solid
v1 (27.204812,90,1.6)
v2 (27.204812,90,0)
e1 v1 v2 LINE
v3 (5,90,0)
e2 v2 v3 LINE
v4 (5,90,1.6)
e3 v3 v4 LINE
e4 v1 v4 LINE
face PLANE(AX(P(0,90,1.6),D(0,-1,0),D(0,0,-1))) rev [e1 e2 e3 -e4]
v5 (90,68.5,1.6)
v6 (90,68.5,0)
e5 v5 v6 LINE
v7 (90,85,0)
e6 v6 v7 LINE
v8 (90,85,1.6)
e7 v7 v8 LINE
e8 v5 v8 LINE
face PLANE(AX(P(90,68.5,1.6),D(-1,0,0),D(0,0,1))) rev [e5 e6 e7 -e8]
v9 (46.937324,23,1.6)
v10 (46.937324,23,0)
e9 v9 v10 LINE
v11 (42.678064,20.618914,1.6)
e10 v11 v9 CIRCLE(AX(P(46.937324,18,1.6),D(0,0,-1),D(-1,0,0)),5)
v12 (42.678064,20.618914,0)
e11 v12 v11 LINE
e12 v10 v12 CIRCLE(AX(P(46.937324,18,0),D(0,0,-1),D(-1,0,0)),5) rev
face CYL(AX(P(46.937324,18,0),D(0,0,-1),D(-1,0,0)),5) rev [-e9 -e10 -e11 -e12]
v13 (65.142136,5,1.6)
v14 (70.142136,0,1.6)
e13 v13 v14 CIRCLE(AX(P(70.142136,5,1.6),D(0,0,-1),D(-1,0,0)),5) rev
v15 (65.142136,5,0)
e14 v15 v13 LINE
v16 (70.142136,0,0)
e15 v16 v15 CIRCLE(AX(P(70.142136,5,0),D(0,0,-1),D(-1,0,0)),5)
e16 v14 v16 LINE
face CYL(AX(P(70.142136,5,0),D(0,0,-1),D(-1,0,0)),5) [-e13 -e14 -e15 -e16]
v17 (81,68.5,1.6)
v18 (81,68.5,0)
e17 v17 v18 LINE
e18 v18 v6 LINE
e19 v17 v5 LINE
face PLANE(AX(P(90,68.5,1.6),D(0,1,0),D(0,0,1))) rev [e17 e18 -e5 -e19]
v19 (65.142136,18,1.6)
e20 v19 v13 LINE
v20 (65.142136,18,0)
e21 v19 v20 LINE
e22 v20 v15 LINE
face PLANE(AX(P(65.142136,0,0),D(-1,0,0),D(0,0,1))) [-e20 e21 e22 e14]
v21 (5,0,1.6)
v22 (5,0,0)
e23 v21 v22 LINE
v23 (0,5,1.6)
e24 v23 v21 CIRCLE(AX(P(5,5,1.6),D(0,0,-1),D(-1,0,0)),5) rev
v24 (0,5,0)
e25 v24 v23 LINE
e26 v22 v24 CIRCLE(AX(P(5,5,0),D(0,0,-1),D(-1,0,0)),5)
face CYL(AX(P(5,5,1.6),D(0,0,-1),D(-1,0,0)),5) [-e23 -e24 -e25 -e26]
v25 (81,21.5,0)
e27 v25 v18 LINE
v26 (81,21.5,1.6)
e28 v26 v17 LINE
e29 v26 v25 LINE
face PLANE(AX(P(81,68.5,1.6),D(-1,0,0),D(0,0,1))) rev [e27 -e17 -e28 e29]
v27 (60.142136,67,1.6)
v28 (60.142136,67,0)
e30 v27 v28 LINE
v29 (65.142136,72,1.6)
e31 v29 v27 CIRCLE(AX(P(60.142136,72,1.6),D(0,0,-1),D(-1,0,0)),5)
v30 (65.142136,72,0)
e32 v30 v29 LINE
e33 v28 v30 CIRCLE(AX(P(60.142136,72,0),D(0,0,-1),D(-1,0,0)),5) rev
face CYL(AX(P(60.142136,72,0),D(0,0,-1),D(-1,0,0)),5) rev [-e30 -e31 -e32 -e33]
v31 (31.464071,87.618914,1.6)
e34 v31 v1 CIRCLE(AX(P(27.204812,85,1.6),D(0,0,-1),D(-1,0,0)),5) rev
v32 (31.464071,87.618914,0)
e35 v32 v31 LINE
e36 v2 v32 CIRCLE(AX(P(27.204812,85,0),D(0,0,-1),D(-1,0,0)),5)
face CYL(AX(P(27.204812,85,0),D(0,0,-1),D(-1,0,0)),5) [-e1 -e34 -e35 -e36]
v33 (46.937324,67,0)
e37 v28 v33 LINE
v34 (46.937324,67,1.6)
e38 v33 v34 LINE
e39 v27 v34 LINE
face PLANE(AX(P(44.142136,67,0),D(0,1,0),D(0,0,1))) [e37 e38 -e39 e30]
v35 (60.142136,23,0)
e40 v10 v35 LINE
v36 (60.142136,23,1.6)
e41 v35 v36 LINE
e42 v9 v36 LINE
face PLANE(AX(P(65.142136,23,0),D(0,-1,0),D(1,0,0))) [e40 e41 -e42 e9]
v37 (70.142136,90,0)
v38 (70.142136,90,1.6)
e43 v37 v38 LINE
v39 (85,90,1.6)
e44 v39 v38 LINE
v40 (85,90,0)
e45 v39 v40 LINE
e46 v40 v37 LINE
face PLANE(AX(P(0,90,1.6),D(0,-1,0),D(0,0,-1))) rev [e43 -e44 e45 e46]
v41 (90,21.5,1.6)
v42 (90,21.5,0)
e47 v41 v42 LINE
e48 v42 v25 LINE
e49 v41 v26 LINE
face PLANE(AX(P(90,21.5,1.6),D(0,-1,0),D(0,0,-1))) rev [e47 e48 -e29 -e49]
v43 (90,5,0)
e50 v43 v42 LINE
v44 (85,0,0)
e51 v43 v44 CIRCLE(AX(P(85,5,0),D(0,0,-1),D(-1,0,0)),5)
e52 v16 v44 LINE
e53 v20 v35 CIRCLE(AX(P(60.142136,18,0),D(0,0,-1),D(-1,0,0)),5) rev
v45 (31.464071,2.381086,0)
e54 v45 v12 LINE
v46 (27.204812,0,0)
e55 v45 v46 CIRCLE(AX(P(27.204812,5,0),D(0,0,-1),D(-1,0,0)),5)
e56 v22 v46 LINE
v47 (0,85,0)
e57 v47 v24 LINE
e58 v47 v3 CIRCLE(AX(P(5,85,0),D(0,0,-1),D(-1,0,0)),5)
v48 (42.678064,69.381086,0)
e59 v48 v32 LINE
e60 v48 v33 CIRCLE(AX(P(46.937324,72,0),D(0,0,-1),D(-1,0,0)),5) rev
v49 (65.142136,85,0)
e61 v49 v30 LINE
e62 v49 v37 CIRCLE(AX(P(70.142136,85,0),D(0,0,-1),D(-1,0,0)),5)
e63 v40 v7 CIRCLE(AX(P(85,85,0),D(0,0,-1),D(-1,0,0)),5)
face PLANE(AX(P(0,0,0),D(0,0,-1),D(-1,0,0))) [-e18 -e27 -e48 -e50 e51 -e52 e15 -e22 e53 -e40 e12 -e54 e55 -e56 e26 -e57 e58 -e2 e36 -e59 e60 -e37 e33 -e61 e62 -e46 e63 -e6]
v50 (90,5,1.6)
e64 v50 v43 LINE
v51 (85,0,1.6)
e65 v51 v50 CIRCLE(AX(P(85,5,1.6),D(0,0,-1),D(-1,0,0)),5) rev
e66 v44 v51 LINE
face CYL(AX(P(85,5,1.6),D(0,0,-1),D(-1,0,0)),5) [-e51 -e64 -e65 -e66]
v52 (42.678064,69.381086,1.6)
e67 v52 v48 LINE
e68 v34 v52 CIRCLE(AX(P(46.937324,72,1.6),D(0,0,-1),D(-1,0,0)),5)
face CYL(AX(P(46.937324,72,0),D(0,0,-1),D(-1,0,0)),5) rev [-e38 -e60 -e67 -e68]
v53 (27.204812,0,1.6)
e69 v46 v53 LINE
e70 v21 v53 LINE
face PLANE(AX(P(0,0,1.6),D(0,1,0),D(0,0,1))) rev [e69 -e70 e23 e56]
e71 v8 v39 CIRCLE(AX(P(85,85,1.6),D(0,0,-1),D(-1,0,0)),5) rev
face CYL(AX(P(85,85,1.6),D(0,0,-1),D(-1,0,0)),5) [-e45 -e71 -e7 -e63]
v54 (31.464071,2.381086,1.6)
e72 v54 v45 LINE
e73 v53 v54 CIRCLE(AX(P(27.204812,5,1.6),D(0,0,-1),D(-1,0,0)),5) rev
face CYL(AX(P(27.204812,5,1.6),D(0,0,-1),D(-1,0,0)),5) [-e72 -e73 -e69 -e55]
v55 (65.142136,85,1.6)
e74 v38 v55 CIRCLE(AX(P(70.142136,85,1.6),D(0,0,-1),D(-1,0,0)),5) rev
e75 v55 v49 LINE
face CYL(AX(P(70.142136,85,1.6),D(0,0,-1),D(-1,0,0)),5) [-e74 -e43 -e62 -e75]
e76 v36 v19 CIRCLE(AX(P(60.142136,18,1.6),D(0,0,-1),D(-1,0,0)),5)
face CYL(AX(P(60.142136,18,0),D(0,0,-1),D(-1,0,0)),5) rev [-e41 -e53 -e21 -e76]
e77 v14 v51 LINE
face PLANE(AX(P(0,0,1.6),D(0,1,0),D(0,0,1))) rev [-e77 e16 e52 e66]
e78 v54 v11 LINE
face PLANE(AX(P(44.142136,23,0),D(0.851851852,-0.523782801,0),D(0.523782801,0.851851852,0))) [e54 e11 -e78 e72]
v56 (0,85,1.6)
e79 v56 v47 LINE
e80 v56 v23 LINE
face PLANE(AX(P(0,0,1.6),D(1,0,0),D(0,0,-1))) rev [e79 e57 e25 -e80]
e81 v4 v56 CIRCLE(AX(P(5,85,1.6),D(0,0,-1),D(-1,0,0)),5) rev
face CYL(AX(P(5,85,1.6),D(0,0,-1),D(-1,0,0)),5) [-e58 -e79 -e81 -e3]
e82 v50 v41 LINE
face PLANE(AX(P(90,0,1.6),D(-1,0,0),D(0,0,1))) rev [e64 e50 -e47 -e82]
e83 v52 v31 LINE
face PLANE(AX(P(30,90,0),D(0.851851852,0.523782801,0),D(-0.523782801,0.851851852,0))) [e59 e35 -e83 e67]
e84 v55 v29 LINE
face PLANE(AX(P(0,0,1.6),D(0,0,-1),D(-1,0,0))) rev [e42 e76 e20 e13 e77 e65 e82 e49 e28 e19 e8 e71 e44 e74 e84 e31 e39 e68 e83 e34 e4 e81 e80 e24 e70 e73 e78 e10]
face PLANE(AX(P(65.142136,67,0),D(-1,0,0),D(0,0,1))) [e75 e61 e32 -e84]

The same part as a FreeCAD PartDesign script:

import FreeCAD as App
import Part
import Sketcher

V = App.Vector
Q = App.Units.Quantity


def edges_at(feature, points):
    """Names of the edges that pass closest to the given points."""
    edges = feature.Shape.Edges
    near = lambda p: min(range(len(edges)), key=lambda i: edges[i].distToShape(Part.Vertex(*p))[0])
    return sorted({f"Edge{near(p) + 1}" for p in points})

doc = App.newDocument("Part")
params = doc.addObject("Spreadsheet::Sheet", "Params")
for row, (alias, value) in enumerate([
    ("sketch1_width", "90 mm"),
    ("sketch1_width2", "9 mm"),
    ("sketch1_height", "47 mm"),
    ("pad1_length", "1.6 mm"),
    ("sketch2_width", "30 mm"),
    ("sketch2_width2", "21 mm"),
    ("sketch2_width3", "9 mm"),
    ("sketch2_height", "90 mm"),
    ("sketch2_height2", "23 mm"),
    ("fillet_radius", "5 mm"),
], start=1):
    params.set(f"A{row}", alias)
    params.set(f"B{row}", "=" + value)
    params.setAlias(f"B{row}", alias)

body = doc.addObject("PartDesign::Body", "Body")

# Sketch on XY plane
sketch1 = doc.addObject("Sketcher::SketchObject", "Sketch")
body.addObject(sketch1)
sketch1.AttachmentSupport = (doc.XY_Plane, [""])
sketch1.MapMode = "FlatFace"
sketch1.addGeometry([
    Part.LineSegment(V(90, 68, 0), V(90, 90, 0)),  # 0
    Part.LineSegment(V(90, 90, 0), V(0, 90, 0)),  # 1
    Part.LineSegment(V(0, 90, 0), V(0, 0, 0)),  # 2
    Part.LineSegment(V(0, 0, 0), V(90, 0, 0)),  # 3
    Part.LineSegment(V(90, 0, 0), V(90, 22, 0)),  # 4
    Part.LineSegment(V(90, 22, 0), V(81, 22, 0)),  # 5
    Part.LineSegment(V(81, 22, 0), V(81, 68, 0)),  # 6
    Part.LineSegment(V(81, 68, 0), V(90, 68, 0)),  # 7
], False)
sketch1.addConstraint([
    Sketcher.Constraint("Coincident", 0, 2, 1, 1),
    Sketcher.Constraint("Coincident", 1, 2, 2, 1),
    Sketcher.Constraint("Coincident", 2, 2, 3, 1),
    Sketcher.Constraint("Coincident", 3, 2, 4, 1),
    Sketcher.Constraint("Coincident", 4, 2, 5, 1),
    Sketcher.Constraint("Coincident", 5, 2, 6, 1),
    Sketcher.Constraint("Coincident", 6, 2, 7, 1),
    Sketcher.Constraint("Coincident", 7, 2, 0, 1),
    Sketcher.Constraint("Vertical", 0),
    Sketcher.Constraint("Horizontal", 1),
    Sketcher.Constraint("Vertical", 2),
    Sketcher.Constraint("Horizontal", 3),
    Sketcher.Constraint("Vertical", 4),
    Sketcher.Constraint("Horizontal", 5),
    Sketcher.Constraint("Vertical", 6),
    Sketcher.Constraint("Horizontal", 7),
    Sketcher.Constraint("Coincident", 2, 2, -1, 1),
    Sketcher.Constraint("Vertical", 0, 2, 3, 2),
    Sketcher.Constraint("Equal", 3, 2),
    Sketcher.Constraint("Equal", 0, 4),
    Sketcher.Constraint("DistanceX", 1, 2, 1, 1, Q("90 mm")),
    Sketcher.Constraint("DistanceX", 5, 2, 5, 1, Q("9 mm")),
    Sketcher.Constraint("DistanceY", 6, 1, 6, 2, Q("47 mm")),
])
sketch1.setExpression("Constraints[20]", "Params.sketch1_width")
sketch1.setExpression("Constraints[21]", "Params.sketch1_width2")
sketch1.setExpression("Constraints[22]", "Params.sketch1_height")
pad1 = doc.addObject("PartDesign::Pad", "Pad")
body.addObject(pad1)
pad1.Profile = sketch1
pad1.setExpression("Length", "Params.pad1_length")

# Sketch on XY plane
sketch2 = doc.addObject("Sketcher::SketchObject", "Sketch001")
body.addObject(sketch2)
sketch2.AttachmentSupport = (doc.XY_Plane, [""])
sketch2.MapMode = "FlatFace"
sketch2.AttachmentOffset = App.Placement(V(0, 0, 1.6), App.Rotation())
sketch2.addGeometry([
    Part.LineSegment(V(-14, 104, 0), V(-14, -14, 0)),  # 0
    Part.LineSegment(V(-14, -14, 0), V(104, -14, 0)),  # 1
    Part.LineSegment(V(104, -14, 0), V(104, 104, 0)),  # 2
    Part.LineSegment(V(104, 104, 0), V(-14, 104, 0)),  # 3
    Part.LineSegment(V(0, 0, 0), V(0, 90, 0)),  # 4
    Part.LineSegment(V(0, 90, 0), V(30, 90, 0)),  # 5
    Part.LineSegment(V(30, 90, 0), V(44, 67, 0)),  # 6
    Part.LineSegment(V(44, 67, 0), V(65, 67, 0)),  # 7
    Part.LineSegment(V(65, 67, 0), V(65, 90, 0)),  # 8
    Part.LineSegment(V(65, 90, 0), V(90, 90, 0)),  # 9
    Part.LineSegment(V(90, 90, 0), V(90, 68, 0)),  # 10
    Part.LineSegment(V(90, 68, 0), V(81, 68, 0)),  # 11
    Part.LineSegment(V(81, 68, 0), V(81, 22, 0)),  # 12
    Part.LineSegment(V(81, 22, 0), V(90, 22, 0)),  # 13
    Part.LineSegment(V(90, 22, 0), V(90, 0, 0)),  # 14
    Part.LineSegment(V(90, 0, 0), V(65, 0, 0)),  # 15
    Part.LineSegment(V(65, 0, 0), V(65, 23, 0)),  # 16
    Part.LineSegment(V(65, 23, 0), V(44, 23, 0)),  # 17
    Part.LineSegment(V(44, 23, 0), V(30, 0, 0)),  # 18
    Part.LineSegment(V(30, 0, 0), V(0, 0, 0)),  # 19
], False)
sketch2.addConstraint([
    Sketcher.Constraint("Coincident", 0, 2, 1, 1),
    Sketcher.Constraint("Coincident", 1, 2, 2, 1),
    Sketcher.Constraint("Coincident", 2, 2, 3, 1),
    Sketcher.Constraint("Coincident", 3, 2, 0, 1),
    Sketcher.Constraint("Coincident", 4, 2, 5, 1),
    Sketcher.Constraint("Coincident", 5, 2, 6, 1),
    Sketcher.Constraint("Coincident", 6, 2, 7, 1),
    Sketcher.Constraint("Coincident", 7, 2, 8, 1),
    Sketcher.Constraint("Coincident", 8, 2, 9, 1),
    Sketcher.Constraint("Coincident", 9, 2, 10, 1),
    Sketcher.Constraint("Coincident", 10, 2, 11, 1),
    Sketcher.Constraint("Coincident", 11, 2, 12, 1),
    Sketcher.Constraint("Coincident", 12, 2, 13, 1),
    Sketcher.Constraint("Coincident", 13, 2, 14, 1),
    Sketcher.Constraint("Coincident", 14, 2, 15, 1),
    Sketcher.Constraint("Coincident", 15, 2, 16, 1),
    Sketcher.Constraint("Coincident", 16, 2, 17, 1),
    Sketcher.Constraint("Coincident", 17, 2, 18, 1),
    Sketcher.Constraint("Coincident", 18, 2, 19, 1),
    Sketcher.Constraint("Coincident", 19, 2, 4, 1),
    Sketcher.Constraint("Vertical", 0),
    Sketcher.Constraint("Horizontal", 1),
    Sketcher.Constraint("Vertical", 2),
    Sketcher.Constraint("Horizontal", 3),
    Sketcher.Constraint("Vertical", 4),
    Sketcher.Constraint("Horizontal", 5),
    Sketcher.Constraint("Horizontal", 7),
    Sketcher.Constraint("Vertical", 8),
    Sketcher.Constraint("Horizontal", 9),
    Sketcher.Constraint("Vertical", 10),
    Sketcher.Constraint("Horizontal", 11),
    Sketcher.Constraint("Vertical", 12),
    Sketcher.Constraint("Horizontal", 13),
    Sketcher.Constraint("Vertical", 14),
    Sketcher.Constraint("Horizontal", 15),
    Sketcher.Constraint("Vertical", 16),
    Sketcher.Constraint("Horizontal", 17),
    Sketcher.Constraint("Horizontal", 19),
    Sketcher.Constraint("Coincident", 19, 2, -1, 1),
    Sketcher.Constraint("PointOnObject", 14, 2, -1),
    Sketcher.Constraint("Horizontal", 5, 2, 8, 2),
    Sketcher.Constraint("Vertical", 10, 2, 13, 2),
    Sketcher.Constraint("Vertical", 8, 2, 15, 2),
    Sketcher.Constraint("Vertical", 6, 2, 17, 2),
    Sketcher.Constraint("Vertical", 5, 2, 18, 2),
    Sketcher.Constraint("Equal", 3, 0),
    Sketcher.Constraint("Equal", 10, 14),
    Sketcher.Constraint("Equal", 8, 16),
    Sketcher.Constraint("DistanceX", 5, 1, 5, 2, Q("30 mm")),
    Sketcher.Constraint("DistanceX", 7, 1, 7, 2, Q("21 mm")),
    Sketcher.Constraint("DistanceX", 11, 2, 11, 1, Q("9 mm")),
    Sketcher.Constraint("DistanceY", 4, 1, 4, 2, Q("90 mm")),
    Sketcher.Constraint("DistanceY", 8, 1, 8, 2, Q("23 mm")),
    Sketcher.Constraint("DistanceY", 12, 2, 12, 1, Q("47 mm")),
    Sketcher.Constraint("Distance", 6, Q("27 mm")),
    Sketcher.Constraint("DistanceX", -1, 1, 9, 2, Q("90 mm")),
    Sketcher.Constraint("DistanceX", 1, 1, 1, 2, Q("117.458 mm")),
    Sketcher.Constraint("DistanceX", 0, 2, -1, 1, Q("13.729 mm")),
    Sketcher.Constraint("DistanceY", 0, 2, -1, 1, Q("13.729 mm")),
])
sketch2.setExpression("Constraints[48]", "Params.sketch2_width")
sketch2.setExpression("Constraints[49]", "Params.sketch2_width2")
sketch2.setExpression("Constraints[50]", "Params.sketch2_width3")
sketch2.setExpression("Constraints[51]", "Params.sketch2_height")
sketch2.setExpression("Constraints[52]", "Params.sketch2_height2")
pocket1 = doc.addObject("PartDesign::Pocket", "Pocket")
body.addObject(pocket1)
pocket1.Profile = sketch2
pocket1.Type = "ThroughAll"
doc.recompute()

fillet = doc.addObject("PartDesign::Fillet", "Fillet")
body.addObject(fillet)
fillet.Base = (pocket1, edges_at(pocket1, [
    (0, 90, 0.8),
    (90, 90, 0.8),
    (90, 0, 0.8),
    (0, 0, 0.8),
    (30, 90, 0.8),
    (44.142, 67, 0.8),
    (65.142, 67, 0.8),
    (65.142, 90, 0.8),
    (65.142, 0, 0.8),
    (65.142, 23, 0.8),
    (44.142, 23, 0.8),
    (30, 0, 0.8),
]))
fillet.setExpression("Radius", "Params.fillet_radius")

doc.recompute()
